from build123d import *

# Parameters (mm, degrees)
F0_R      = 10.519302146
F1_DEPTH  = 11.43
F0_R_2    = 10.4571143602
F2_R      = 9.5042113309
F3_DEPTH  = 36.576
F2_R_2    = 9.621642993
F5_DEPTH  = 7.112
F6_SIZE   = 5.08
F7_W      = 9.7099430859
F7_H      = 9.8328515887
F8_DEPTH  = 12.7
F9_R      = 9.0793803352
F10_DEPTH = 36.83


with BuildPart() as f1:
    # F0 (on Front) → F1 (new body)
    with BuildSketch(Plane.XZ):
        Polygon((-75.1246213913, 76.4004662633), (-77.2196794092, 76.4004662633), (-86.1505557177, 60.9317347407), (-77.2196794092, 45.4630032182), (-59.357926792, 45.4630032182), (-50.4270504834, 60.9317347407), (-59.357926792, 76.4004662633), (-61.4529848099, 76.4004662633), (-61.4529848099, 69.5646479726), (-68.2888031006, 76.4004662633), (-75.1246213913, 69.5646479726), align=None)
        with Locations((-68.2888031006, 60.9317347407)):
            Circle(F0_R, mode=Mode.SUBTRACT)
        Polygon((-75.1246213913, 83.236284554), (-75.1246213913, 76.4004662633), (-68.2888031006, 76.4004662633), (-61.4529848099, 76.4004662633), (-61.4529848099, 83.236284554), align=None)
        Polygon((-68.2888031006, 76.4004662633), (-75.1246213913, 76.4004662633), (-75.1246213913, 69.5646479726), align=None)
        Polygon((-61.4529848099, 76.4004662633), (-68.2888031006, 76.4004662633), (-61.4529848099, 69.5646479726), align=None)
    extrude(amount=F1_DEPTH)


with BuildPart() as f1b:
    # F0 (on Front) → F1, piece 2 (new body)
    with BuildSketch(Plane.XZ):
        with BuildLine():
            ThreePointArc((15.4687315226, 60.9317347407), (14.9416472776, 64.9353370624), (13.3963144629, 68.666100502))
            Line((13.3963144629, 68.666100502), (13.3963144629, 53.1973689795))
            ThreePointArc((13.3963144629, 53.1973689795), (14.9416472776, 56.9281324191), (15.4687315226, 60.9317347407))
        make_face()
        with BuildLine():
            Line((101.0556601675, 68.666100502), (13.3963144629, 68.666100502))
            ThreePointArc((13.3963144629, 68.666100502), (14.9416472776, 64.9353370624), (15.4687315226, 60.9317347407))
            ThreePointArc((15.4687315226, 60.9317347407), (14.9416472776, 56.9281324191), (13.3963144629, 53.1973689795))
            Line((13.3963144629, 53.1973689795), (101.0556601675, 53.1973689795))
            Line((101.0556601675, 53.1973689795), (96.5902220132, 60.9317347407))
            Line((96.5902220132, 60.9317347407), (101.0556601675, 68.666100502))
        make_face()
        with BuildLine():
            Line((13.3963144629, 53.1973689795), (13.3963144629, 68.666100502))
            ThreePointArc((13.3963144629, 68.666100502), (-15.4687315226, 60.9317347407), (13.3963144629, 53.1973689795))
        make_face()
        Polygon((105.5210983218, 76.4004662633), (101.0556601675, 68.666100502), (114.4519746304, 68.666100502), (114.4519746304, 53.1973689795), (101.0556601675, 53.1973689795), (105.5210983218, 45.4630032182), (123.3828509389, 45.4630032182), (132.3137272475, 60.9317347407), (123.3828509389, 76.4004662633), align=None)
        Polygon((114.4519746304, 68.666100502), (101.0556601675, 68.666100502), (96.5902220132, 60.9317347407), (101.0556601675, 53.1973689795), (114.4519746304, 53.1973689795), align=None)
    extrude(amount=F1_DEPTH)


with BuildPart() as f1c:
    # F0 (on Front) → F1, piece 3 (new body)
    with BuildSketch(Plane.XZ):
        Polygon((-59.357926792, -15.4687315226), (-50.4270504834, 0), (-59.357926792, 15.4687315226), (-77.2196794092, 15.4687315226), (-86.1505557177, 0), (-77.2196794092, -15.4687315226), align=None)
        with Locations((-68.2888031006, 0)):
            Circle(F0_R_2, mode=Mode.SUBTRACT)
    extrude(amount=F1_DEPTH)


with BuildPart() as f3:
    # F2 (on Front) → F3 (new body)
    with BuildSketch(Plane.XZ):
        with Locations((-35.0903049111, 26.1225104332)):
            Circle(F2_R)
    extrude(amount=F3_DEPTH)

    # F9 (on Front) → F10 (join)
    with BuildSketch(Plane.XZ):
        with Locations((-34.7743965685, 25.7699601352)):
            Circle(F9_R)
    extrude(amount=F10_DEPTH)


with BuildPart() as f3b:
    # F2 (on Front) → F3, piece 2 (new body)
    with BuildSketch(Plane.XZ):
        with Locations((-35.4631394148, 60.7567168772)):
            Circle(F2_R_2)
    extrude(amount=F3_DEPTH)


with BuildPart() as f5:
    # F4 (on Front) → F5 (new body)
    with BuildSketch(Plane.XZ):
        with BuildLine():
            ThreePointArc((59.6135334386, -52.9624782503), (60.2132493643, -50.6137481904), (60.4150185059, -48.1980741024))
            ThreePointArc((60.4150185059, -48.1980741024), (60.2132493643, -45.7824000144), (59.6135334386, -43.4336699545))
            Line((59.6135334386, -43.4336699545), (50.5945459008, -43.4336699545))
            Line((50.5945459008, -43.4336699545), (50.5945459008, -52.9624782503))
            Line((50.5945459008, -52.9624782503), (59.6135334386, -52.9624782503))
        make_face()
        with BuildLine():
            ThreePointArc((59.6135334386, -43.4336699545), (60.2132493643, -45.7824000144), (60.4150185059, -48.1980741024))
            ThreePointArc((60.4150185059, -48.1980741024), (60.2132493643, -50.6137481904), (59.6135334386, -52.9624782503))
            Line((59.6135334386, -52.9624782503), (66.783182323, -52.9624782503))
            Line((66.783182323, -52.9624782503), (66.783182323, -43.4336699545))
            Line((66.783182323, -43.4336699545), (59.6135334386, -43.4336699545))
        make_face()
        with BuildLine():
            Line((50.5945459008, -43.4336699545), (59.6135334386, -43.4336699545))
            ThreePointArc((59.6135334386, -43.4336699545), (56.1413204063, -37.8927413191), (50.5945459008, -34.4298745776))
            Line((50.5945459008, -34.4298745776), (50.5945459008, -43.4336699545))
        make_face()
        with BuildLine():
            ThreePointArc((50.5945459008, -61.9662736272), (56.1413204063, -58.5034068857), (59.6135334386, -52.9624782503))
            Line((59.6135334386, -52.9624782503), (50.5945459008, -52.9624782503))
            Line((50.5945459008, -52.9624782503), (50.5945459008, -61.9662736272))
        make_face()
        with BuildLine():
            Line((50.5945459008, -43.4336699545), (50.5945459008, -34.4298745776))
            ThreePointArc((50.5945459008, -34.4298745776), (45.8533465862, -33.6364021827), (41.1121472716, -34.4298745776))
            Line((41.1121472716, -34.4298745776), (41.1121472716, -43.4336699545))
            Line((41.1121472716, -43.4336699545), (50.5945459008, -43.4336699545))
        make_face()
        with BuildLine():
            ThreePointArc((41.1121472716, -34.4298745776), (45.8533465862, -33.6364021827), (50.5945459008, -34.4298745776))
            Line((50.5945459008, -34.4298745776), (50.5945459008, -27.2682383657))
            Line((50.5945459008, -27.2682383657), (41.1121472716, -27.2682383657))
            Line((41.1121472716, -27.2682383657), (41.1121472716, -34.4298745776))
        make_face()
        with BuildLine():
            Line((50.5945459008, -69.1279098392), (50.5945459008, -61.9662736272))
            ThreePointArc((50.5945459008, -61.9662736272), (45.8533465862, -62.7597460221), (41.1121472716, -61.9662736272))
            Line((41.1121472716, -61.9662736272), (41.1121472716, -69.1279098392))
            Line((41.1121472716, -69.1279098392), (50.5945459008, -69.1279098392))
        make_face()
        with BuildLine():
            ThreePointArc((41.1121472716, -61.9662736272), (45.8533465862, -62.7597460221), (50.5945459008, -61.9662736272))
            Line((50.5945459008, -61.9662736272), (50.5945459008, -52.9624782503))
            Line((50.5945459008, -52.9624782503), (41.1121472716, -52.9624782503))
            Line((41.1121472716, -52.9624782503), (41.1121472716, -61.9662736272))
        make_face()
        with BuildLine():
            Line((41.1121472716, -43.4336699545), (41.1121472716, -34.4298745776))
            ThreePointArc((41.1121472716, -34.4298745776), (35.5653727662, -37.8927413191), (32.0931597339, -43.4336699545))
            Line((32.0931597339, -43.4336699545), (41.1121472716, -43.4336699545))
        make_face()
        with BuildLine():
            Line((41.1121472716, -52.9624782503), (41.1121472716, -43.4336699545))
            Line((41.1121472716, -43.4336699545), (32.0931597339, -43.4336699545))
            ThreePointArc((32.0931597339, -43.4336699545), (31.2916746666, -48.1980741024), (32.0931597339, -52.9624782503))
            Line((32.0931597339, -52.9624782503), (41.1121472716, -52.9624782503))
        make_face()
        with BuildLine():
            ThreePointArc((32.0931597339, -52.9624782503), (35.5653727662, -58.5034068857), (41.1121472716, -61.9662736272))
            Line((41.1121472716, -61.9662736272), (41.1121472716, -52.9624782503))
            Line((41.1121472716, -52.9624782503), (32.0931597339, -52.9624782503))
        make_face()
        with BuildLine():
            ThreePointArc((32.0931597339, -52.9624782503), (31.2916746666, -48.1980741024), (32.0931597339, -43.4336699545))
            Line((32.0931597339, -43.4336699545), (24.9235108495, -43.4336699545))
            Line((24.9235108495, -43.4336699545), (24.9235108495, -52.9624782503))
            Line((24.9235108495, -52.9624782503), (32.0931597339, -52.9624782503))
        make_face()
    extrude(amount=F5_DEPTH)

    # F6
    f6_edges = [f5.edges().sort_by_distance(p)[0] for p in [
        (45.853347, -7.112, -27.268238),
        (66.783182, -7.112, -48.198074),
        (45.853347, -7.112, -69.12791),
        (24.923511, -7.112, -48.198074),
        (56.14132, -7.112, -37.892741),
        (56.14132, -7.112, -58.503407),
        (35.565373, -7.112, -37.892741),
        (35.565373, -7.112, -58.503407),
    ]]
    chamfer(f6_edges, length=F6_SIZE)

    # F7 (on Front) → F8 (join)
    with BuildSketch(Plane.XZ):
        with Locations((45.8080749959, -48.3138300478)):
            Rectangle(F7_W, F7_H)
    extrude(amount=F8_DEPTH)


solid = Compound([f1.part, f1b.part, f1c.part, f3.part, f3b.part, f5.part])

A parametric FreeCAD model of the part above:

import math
import FreeCAD as App
import Part
import Sketcher
from FreeCAD import Vector
Q = App.Units.Quantity


def edges_at(feature, points):
    """Names of the edges that pass closest to the given points."""
    edges = feature.Shape.Edges
    near = lambda p: min(range(len(edges)), key=lambda i: edges[i].distToShape(Part.Vertex(*p))[0])
    return sorted({f"Edge{near(p) + 1}" for p in points})

doc = App.newDocument("Part")
body = doc.addObject("PartDesign::Body", "Body")

sketch1 = body.newObject("Sketcher::SketchObject", "Sketch")
sketch1.AttachmentSupport = (doc.getObject("XZ_Plane"), [""])
sketch1.MapMode = "FlatFace"
sketch1.addGeometry(Part.LineSegment(Vector(-59.357927, 76.400466, 0), Vector(-61.452985, 76.400466, 0)), False)
sketch1.addGeometry(Part.LineSegment(Vector(-61.452985, 76.400466, 0), Vector(-61.452985, 83.236285, 0)), False)
sketch1.addGeometry(Part.LineSegment(Vector(-61.452985, 83.236285, 0), Vector(-75.124621, 83.236285, 0)), False)
sketch1.addGeometry(Part.LineSegment(Vector(-75.124621, 83.236285, 0), Vector(-75.124621, 76.400466, 0)), False)
sketch1.addGeometry(Part.LineSegment(Vector(-75.124621, 76.400466, 0), Vector(-77.219679, 76.400466, 0)), False)
sketch1.addGeometry(Part.LineSegment(Vector(-77.219679, 76.400466, 0), Vector(-86.150556, 60.931735, 0)), False)
sketch1.addGeometry(Part.LineSegment(Vector(-86.150556, 60.931735, 0), Vector(-77.219679, 45.463003, 0)), False)
sketch1.addGeometry(Part.LineSegment(Vector(-77.219679, 45.463003, 0), Vector(-59.357927, 45.463003, 0)), False)
sketch1.addGeometry(Part.LineSegment(Vector(-59.357927, 45.463003, 0), Vector(-50.42705, 60.931735, 0)), False)
sketch1.addGeometry(Part.LineSegment(Vector(-50.42705, 60.931735, 0), Vector(-59.357927, 76.400466, 0)), False)
sketch1.addGeometry(Part.Circle(Vector(-68.288803, 60.931735, 0), Vector(0, 0, 1), 10.519302), False)
sketch1.addConstraint(Sketcher.Constraint("Coincident", 0, 2, 1, 1))
sketch1.addConstraint(Sketcher.Constraint("Coincident", 1, 2, 2, 1))
sketch1.addConstraint(Sketcher.Constraint("Coincident", 2, 2, 3, 1))
sketch1.addConstraint(Sketcher.Constraint("Coincident", 3, 2, 4, 1))
sketch1.addConstraint(Sketcher.Constraint("Coincident", 4, 2, 5, 1))
sketch1.addConstraint(Sketcher.Constraint("Coincident", 5, 2, 6, 1))
sketch1.addConstraint(Sketcher.Constraint("Coincident", 6, 2, 7, 1))
sketch1.addConstraint(Sketcher.Constraint("Coincident", 7, 2, 8, 1))
sketch1.addConstraint(Sketcher.Constraint("Coincident", 8, 2, 9, 1))
sketch1.addConstraint(Sketcher.Constraint("Coincident", 9, 2, 0, 1))
sketch1.addConstraint(Sketcher.Constraint("Horizontal", 0))
sketch1.addConstraint(Sketcher.Constraint("Vertical", 1))
sketch1.addConstraint(Sketcher.Constraint("Horizontal", 2))
sketch1.addConstraint(Sketcher.Constraint("Vertical", 3))
sketch1.addConstraint(Sketcher.Constraint("Horizontal", 4))
sketch1.addConstraint(Sketcher.Constraint("Horizontal", 7))
sketch1.addConstraint(Sketcher.Constraint("Parallel", 5, 8))
sketch1.addConstraint(Sketcher.Constraint("Parallel", 6, 9))
sketch1.addConstraint(Sketcher.Constraint("Horizontal", 0, 2, 3, 2))
sketch1.addConstraint(Sketcher.Constraint("Horizontal", 10, 3, 5, 2))
sketch1.addConstraint(Sketcher.Constraint("Horizontal", 5, 2, 8, 2))
sketch1.addConstraint(Sketcher.Constraint("Vertical", 4, 2, 6, 2))
sketch1.addConstraint(Sketcher.Constraint("Vertical", 7, 2, 9, 2))
sketch1.addConstraint(Sketcher.Constraint("Equal", 0, 4))
sketch1.addConstraint(Sketcher.Constraint("Angle", 5, Q("-120 deg")))
sketch1.addConstraint(Sketcher.Constraint("Diameter", 10, Q("21.038604 mm")))
sketch1.addConstraint(Sketcher.Constraint("DistanceX", 0, 2, 0, 1, Q("2.095058 mm")))
sketch1.addConstraint(Sketcher.Constraint("DistanceY", 1, 1, 1, 2, Q("6.835818 mm")))
sketch1.addConstraint(Sketcher.Constraint("DistanceX", 2, 2, 2, 1, Q("13.671637 mm")))
sketch1.addConstraint(Sketcher.Constraint("DistanceX", 2, 2, -1, 1, Q("75.124621 mm")))
sketch1.addConstraint(Sketcher.Constraint("DistanceX", 8, 2, -1, 1, Q("50.42705 mm")))
sketch1.addConstraint(Sketcher.Constraint("DistanceX", 10, 3, 0, 2, Q("6.835818 mm")))
sketch1.addConstraint(Sketcher.Constraint("DistanceY", -1, 1, 10, 3, Q("60.931735 mm")))
pad1 = body.newObject("PartDesign::Pad", "Pad")
pad1.Profile = sketch1
pad1.Length = Q("0.45 in")
body2 = doc.addObject("PartDesign::Body", "Body001")

sketch2 = body2.newObject("Sketcher::SketchObject", "Sketch001")
sketch2.AttachmentSupport = (doc.getObject("XZ_Plane001"), [""])
sketch2.MapMode = "FlatFace"
sketch2.addGeometry(Part.LineSegment(Vector(13.396314, 53.197369, 0), Vector(101.05566, 53.197369, 0)), False)
sketch2.addGeometry(Part.LineSegment(Vector(101.05566, 53.197369, 0), Vector(105.521098, 45.463003, 0)), False)
sketch2.addGeometry(Part.LineSegment(Vector(105.521098, 45.463003, 0), Vector(123.382851, 45.463003, 0)), False)
sketch2.addGeometry(Part.LineSegment(Vector(123.382851, 45.463003, 0), Vector(132.313727, 60.931735, 0)), False)
sketch2.addGeometry(Part.LineSegment(Vector(132.313727, 60.931735, 0), Vector(123.382851, 76.400466, 0)), False)
sketch2.addGeometry(Part.LineSegment(Vector(123.382851, 76.400466, 0), Vector(105.521098, 76.400466, 0)), False)
sketch2.addGeometry(Part.LineSegment(Vector(105.521098, 76.400466, 0), Vector(101.05566, 68.666101, 0)), False)
sketch2.addGeometry(Part.LineSegment(Vector(101.05566, 68.666101, 0), Vector(13.396314, 68.666101, 0)), False)
sketch2.addGeometry(Part.ArcOfCircle(Part.Circle(Vector(0, 60.931735, 0), Vector(0, 0, 1), 15.468732), math.radians(30), math.radians(330)), False)
sketch2.addConstraint(Sketcher.Constraint("Coincident", 0, 2, 1, 1))
sketch2.addConstraint(Sketcher.Constraint("Coincident", 1, 2, 2, 1))
sketch2.addConstraint(Sketcher.Constraint("Coincident", 2, 2, 3, 1))
sketch2.addConstraint(Sketcher.Constraint("Coincident", 3, 2, 4, 1))
sketch2.addConstraint(Sketcher.Constraint("Coincident", 4, 2, 5, 1))
sketch2.addConstraint(Sketcher.Constraint("Coincident", 5, 2, 6, 1))
sketch2.addConstraint(Sketcher.Constraint("Coincident", 6, 2, 7, 1))
sketch2.addConstraint(Sketcher.Constraint("Coincident", 7, 2, 8, 1))
sketch2.addConstraint(Sketcher.Constraint("Coincident", 8, 2, 0, 1))
sketch2.addConstraint(Sketcher.Constraint("Horizontal", 0))
sketch2.addConstraint(Sketcher.Constraint("Horizontal", 2))
sketch2.addConstraint(Sketcher.Constraint("Horizontal", 5))
sketch2.addConstraint(Sketcher.Constraint("Horizontal", 7))
sketch2.addConstraint(Sketcher.Constraint("PointOnObject", 8, 3, -2))
sketch2.addConstraint(Sketcher.Constraint("Parallel", 1, 4))
sketch2.addConstraint(Sketcher.Constraint("Parallel", 3, 6))
sketch2.addConstraint(Sketcher.Constraint("Horizontal", 8, 3, 3, 2))
sketch2.addConstraint(Sketcher.Constraint("Vertical", 2, 2, 4, 2))
sketch2.addConstraint(Sketcher.Constraint("Vertical", 1, 2, 5, 2))
sketch2.addConstraint(Sketcher.Constraint("Vertical", 0, 2, 6, 2))
sketch2.addConstraint(Sketcher.Constraint("Vertical", 7, 2, 8, 2))
sketch2.addConstraint(Sketcher.Constraint("Angle", 1, Q("-60 deg")))
sketch2.addConstraint(Sketcher.Constraint("Radius", 8, Q("15.468732 mm")))
sketch2.addConstraint(Sketcher.Constraint("DistanceX", -1, 1, 1, 2, Q("105.521098 mm")))
sketch2.addConstraint(Sketcher.Constraint("DistanceY", -1, 1, 6, 2, Q("68.666101 mm")))
sketch2.addConstraint(Sketcher.Constraint("DistanceX", 0, 1, 0, 2, Q("87.659346 mm")))
sketch2.addConstraint(Sketcher.Constraint("DistanceX", 2, 1, 2, 2, Q("17.861753 mm")))
sketch2.addConstraint(Sketcher.Constraint("DistanceX", -1, 1, 0, 2, Q("101.05566 mm")))
pad2 = body2.newObject("PartDesign::Pad", "Pad001")
pad2.Profile = sketch2
pad2.Length = Q("0.45 in")
body3 = doc.addObject("PartDesign::Body", "Body002")

sketch3 = body3.newObject("Sketcher::SketchObject", "Sketch002")
sketch3.AttachmentSupport = (doc.getObject("XZ_Plane002"), [""])
sketch3.MapMode = "FlatFace"
sketch3.addGeometry(Part.LineSegment(Vector(-59.357927, -15.468732, 0), Vector(-50.42705, 0, 0)), False)
sketch3.addGeometry(Part.LineSegment(Vector(-50.42705, 0, 0), Vector(-59.357927, 15.468732, 0)), False)
sketch3.addGeometry(Part.LineSegment(Vector(-59.357927, 15.468732, 0), Vector(-77.219679, 15.468732, 0)), False)
sketch3.addGeometry(Part.LineSegment(Vector(-77.219679, 15.468732, 0), Vector(-86.150556, 0, 0)), False)
sketch3.addGeometry(Part.LineSegment(Vector(-86.150556, 0, 0), Vector(-77.219679, -15.468732, 0)), False)
sketch3.addGeometry(Part.LineSegment(Vector(-77.219679, -15.468732, 0), Vector(-59.357927, -15.468732, 0)), False)
sketch3.addGeometry(Part.Circle(Vector(-68.288803, 0, 0), Vector(0, 0, 1), 10.457114), False)
sketch3.addConstraint(Sketcher.Constraint("Coincident", 0, 2, 1, 1))
sketch3.addConstraint(Sketcher.Constraint("Coincident", 1, 2, 2, 1))
sketch3.addConstraint(Sketcher.Constraint("Coincident", 2, 2, 3, 1))
sketch3.addConstraint(Sketcher.Constraint("Coincident", 3, 2, 4, 1))
sketch3.addConstraint(Sketcher.Constraint("Coincident", 4, 2, 5, 1))
sketch3.addConstraint(Sketcher.Constraint("Coincident", 5, 2, 0, 1))
sketch3.addConstraint(Sketcher.Constraint("Horizontal", 2))
sketch3.addConstraint(Sketcher.Constraint("Horizontal", 5))
sketch3.addConstraint(Sketcher.Constraint("Symmetric", 2, 2, 4, 2, -1))
sketch3.addConstraint(Sketcher.Constraint("PointOnObject", 6, 3, -1))
sketch3.addConstraint(Sketcher.Constraint("PointOnObject", 0, 2, -1))
sketch3.addConstraint(Sketcher.Constraint("PointOnObject", 3, 2, -1))
sketch3.addConstraint(Sketcher.Constraint("Parallel", 0, 3))
sketch3.addConstraint(Sketcher.Constraint("Parallel", 1, 4))
sketch3.addConstraint(Sketcher.Constraint("Angle", 0, Q("60 deg")))
sketch3.addConstraint(Sketcher.Constraint("Diameter", 6, Q("20.914229 mm")))
sketch3.addConstraint(Sketcher.Constraint("DistanceX", 2, 2, 2, 1, Q("17.861753 mm")))
sketch3.addConstraint(Sketcher.Constraint("DistanceX", 0, 2, -1, 1, Q("50.42705 mm")))
sketch3.addConstraint(Sketcher.Constraint("DistanceY", -1, 1, 1, 2, Q("15.468732 mm")))
sketch3.addConstraint(Sketcher.Constraint("DistanceX", 6, 3, -1, 1, Q("68.288803 mm")))
pad3 = body3.newObject("PartDesign::Pad", "Pad002")
pad3.Profile = sketch3
pad3.Length = Q("0.45 in")
body4 = doc.addObject("PartDesign::Body", "Body003")

sketch4 = body4.newObject("Sketcher::SketchObject", "Sketch003")
sketch4.AttachmentSupport = (doc.getObject("XZ_Plane003"), [""])
sketch4.MapMode = "FlatFace"
sketch4.addGeometry(Part.Circle(Vector(-35.090305, 26.12251, 0), Vector(0, 0, 1), 9.504211), False)
sketch4.addConstraint(Sketcher.Constraint("Diameter", 0, Q("19.008423 mm")))
sketch4.addConstraint(Sketcher.Constraint("DistanceY", -1, 1, 0, 3, Q("26.12251 mm")))
sketch4.addConstraint(Sketcher.Constraint("DistanceX", 0, 3, -1, 1, Q("35.090305 mm")))
pad4 = body4.newObject("PartDesign::Pad", "Pad003")
pad4.Profile = sketch4
pad4.Length = Q("1.44 in")

sketch5 = body4.newObject("Sketcher::SketchObject", "Sketch004")
sketch5.AttachmentSupport = (doc.getObject("XZ_Plane003"), [""])
sketch5.MapMode = "FlatFace"
sketch5.addGeometry(Part.Circle(Vector(-34.774397, 25.76996, 0), Vector(0, 0, 1), 9.07938), False)
sketch5.addConstraint(Sketcher.Constraint("Diameter", 0, Q("18.158761 mm")))
sketch5.addConstraint(Sketcher.Constraint("DistanceY", -1, 1, 0, 3, Q("25.76996 mm")))
sketch5.addConstraint(Sketcher.Constraint("DistanceX", 0, 3, -1, 1, Q("34.774397 mm")))
pad5 = body4.newObject("PartDesign::Pad", "Pad004")
pad5.Profile = sketch5
pad5.Length = Q("1.45 in")
body5 = doc.addObject("PartDesign::Body", "Body004")

sketch6 = body5.newObject("Sketcher::SketchObject", "Sketch005")
sketch6.AttachmentSupport = (doc.getObject("XZ_Plane004"), [""])
sketch6.MapMode = "FlatFace"
sketch6.addGeometry(Part.Circle(Vector(-35.463139, 60.756717, 0), Vector(0, 0, 1), 9.621643), False)
sketch6.addConstraint(Sketcher.Constraint("Diameter", 0, Q("19.243286 mm")))
sketch6.addConstraint(Sketcher.Constraint("DistanceX", 0, 3, -1, 1, Q("35.463139 mm")))
sketch6.addConstraint(Sketcher.Constraint("DistanceY", -1, 1, 0, 3, Q("60.756717 mm")))
pad6 = body5.newObject("PartDesign::Pad", "Pad005")
pad6.Profile = sketch6
pad6.Length = Q("1.44 in")
body6 = doc.addObject("PartDesign::Body", "Body005")

sketch7 = body6.newObject("Sketcher::SketchObject", "Sketch006")
sketch7.AttachmentSupport = (doc.getObject("XZ_Plane005"), [""])
sketch7.MapMode = "FlatFace"
sketch7.addGeometry(Part.ArcOfCircle(Part.Circle(Vector(45.853347, -48.198074, 0), Vector(0, 0, 1), 14.561672), math.radians(-160.901814), math.radians(-109.001592)), False)
sketch7.addGeometry(Part.LineSegment(Vector(41.112147, -61.966274, 0), Vector(41.112147, -69.12791, 0)), False)
sketch7.addGeometry(Part.LineSegment(Vector(41.112147, -69.12791, 0), Vector(50.594546, -69.12791, 0)), False)
sketch7.addGeometry(Part.LineSegment(Vector(50.594546, -69.12791, 0), Vector(50.594546, -61.966274, 0)), False)
sketch7.addGeometry(Part.ArcOfCircle(Part.Circle(Vector(45.853347, -48.198074, 0), Vector(0, 0, 1), 14.561672), math.radians(-70.998408), math.radians(-19.098186)), False)
sketch7.addGeometry(Part.LineSegment(Vector(59.613533, -52.962478, 0), Vector(66.783182, -52.962478, 0)), False)
sketch7.addGeometry(Part.LineSegment(Vector(66.783182, -52.962478, 0), Vector(66.783182, -43.43367, 0)), False)
sketch7.addGeometry(Part.LineSegment(Vector(66.783182, -43.43367, 0), Vector(59.613533, -43.43367, 0)), False)
sketch7.addGeometry(Part.ArcOfCircle(Part.Circle(Vector(45.853347, -48.198074, 0), Vector(0, 0, 1), 14.561672), math.radians(19.098186), math.radians(70.998408)), False)
sketch7.addGeometry(Part.LineSegment(Vector(50.594546, -34.429875, 0), Vector(50.594546, -27.268238, 0)), False)
sketch7.addGeometry(Part.LineSegment(Vector(50.594546, -27.268238, 0), Vector(41.112147, -27.268238, 0)), False)
sketch7.addGeometry(Part.LineSegment(Vector(41.112147, -27.268238, 0), Vector(41.112147, -34.429875, 0)), False)
sketch7.addGeometry(Part.ArcOfCircle(Part.Circle(Vector(45.853347, -48.198074, 0), Vector(0, 0, 1), 14.561672), math.radians(109.001592), math.radians(160.901814)), False)
sketch7.addGeometry(Part.LineSegment(Vector(32.09316, -43.43367, 0), Vector(24.923511, -43.43367, 0)), False)
sketch7.addGeometry(Part.LineSegment(Vector(24.923511, -43.43367, 0), Vector(24.923511, -52.962478, 0)), False)
sketch7.addGeometry(Part.LineSegment(Vector(24.923511, -52.962478, 0), Vector(32.09316, -52.962478, 0)), False)
sketch7.addGeometry(Part.LineSegment(Vector(50.594546, -52.962478, 0), Vector(41.112147, -52.962478, 0)), False)
sketch7.addGeometry(Part.LineSegment(Vector(41.112147, -52.962478, 0), Vector(41.112147, -43.43367, 0)), False)
sketch7.addGeometry(Part.LineSegment(Vector(41.112147, -43.43367, 0), Vector(50.594546, -43.43367, 0)), False)
sketch7.addGeometry(Part.LineSegment(Vector(50.594546, -43.43367, 0), Vector(50.594546, -52.962478, 0)), False)
sketch7.addConstraint(Sketcher.Constraint("Coincident", 0, 2, 1, 1))
sketch7.addConstraint(Sketcher.Constraint("Coincident", 1, 2, 2, 1))
sketch7.addConstraint(Sketcher.Constraint("Coincident", 2, 2, 3, 1))
sketch7.addConstraint(Sketcher.Constraint("Coincident", 3, 2, 4, 1))
sketch7.addConstraint(Sketcher.Constraint("Coincident", 4, 2, 5, 1))
sketch7.addConstraint(Sketcher.Constraint("Coincident", 5, 2, 6, 1))
sketch7.addConstraint(Sketcher.Constraint("Coincident", 6, 2, 7, 1))
sketch7.addConstraint(Sketcher.Constraint("Coincident", 7, 2, 8, 1))
sketch7.addConstraint(Sketcher.Constraint("Coincident", 8, 2, 9, 1))
sketch7.addConstraint(Sketcher.Constraint("Coincident", 9, 2, 10, 1))
sketch7.addConstraint(Sketcher.Constraint("Coincident", 10, 2, 11, 1))
sketch7.addConstraint(Sketcher.Constraint("Coincident", 11, 2, 12, 1))
sketch7.addConstraint(Sketcher.Constraint("Coincident", 12, 2, 13, 1))
sketch7.addConstraint(Sketcher.Constraint("Coincident", 13, 2, 14, 1))
sketch7.addConstraint(Sketcher.Constraint("Coincident", 14, 2, 15, 1))
sketch7.addConstraint(Sketcher.Constraint("Coincident", 15, 2, 0, 1))
sketch7.addConstraint(Sketcher.Constraint("Coincident", 16, 2, 17, 1))
sketch7.addConstraint(Sketcher.Constraint("Coincident", 17, 2, 18, 1))
sketch7.addConstraint(Sketcher.Constraint("Coincident", 18, 2, 19, 1))
sketch7.addConstraint(Sketcher.Constraint("Coincident", 19, 2, 16, 1))
sketch7.addConstraint(Sketcher.Constraint("Vertical", 1))
sketch7.addConstraint(Sketcher.Constraint("Horizontal", 2))
sketch7.addConstraint(Sketcher.Constraint("Vertical", 3))
sketch7.addConstraint(Sketcher.Constraint("Horizontal", 5))
sketch7.addConstraint(Sketcher.Constraint("Vertical", 6))
sketch7.addConstraint(Sketcher.Constraint("Horizontal", 7))
sketch7.addConstraint(Sketcher.Constraint("Vertical", 9))
sketch7.addConstraint(Sketcher.Constraint("Horizontal", 10))
sketch7.addConstraint(Sketcher.Constraint("Vertical", 11))
sketch7.addConstraint(Sketcher.Constraint("Horizontal", 13))
sketch7.addConstraint(Sketcher.Constraint("Vertical", 14))
sketch7.addConstraint(Sketcher.Constraint("Horizontal", 15))
sketch7.addConstraint(Sketcher.Constraint("Horizontal", 16))
sketch7.addConstraint(Sketcher.Constraint("Vertical", 17))
sketch7.addConstraint(Sketcher.Constraint("Horizontal", 18))
sketch7.addConstraint(Sketcher.Constraint("Vertical", 19))
sketch7.addConstraint(Sketcher.Constraint("Coincident", 4, 3, 0, 3))
sketch7.addConstraint(Sketcher.Constraint("Coincident", 8, 3, 0, 3))
sketch7.addConstraint(Sketcher.Constraint("Coincident", 12, 3, 0, 3))
sketch7.addConstraint(Sketcher.Constraint("Equal", 0, 4))
sketch7.addConstraint(Sketcher.Constraint("Equal", 4, 8))
sketch7.addConstraint(Sketcher.Constraint("Equal", 8, 12))
sketch7.addConstraint(Sketcher.Constraint("Horizontal", 0, 2, 3, 2))
sketch7.addConstraint(Sketcher.Constraint("Horizontal", 8, 2, 11, 2))
sketch7.addConstraint(Sketcher.Constraint("Horizontal", 7, 2, 12, 2))
sketch7.addConstraint(Sketcher.Constraint("Horizontal", 5, 2, 14, 2))
sketch7.addConstraint(Sketcher.Constraint("Horizontal", 15, 2, 16, 2))
sketch7.addConstraint(Sketcher.Constraint("Horizontal", 13, 2, 17, 2))
sketch7.addConstraint(Sketcher.Constraint("Vertical", 4, 2, 7, 2))
sketch7.addConstraint(Sketcher.Constraint("Vertical", 3, 2, 8, 2))
sketch7.addConstraint(Sketcher.Constraint("Vertical", 11, 2, 16, 2))
sketch7.addConstraint(Sketcher.Constraint("Vertical", 9, 2, 18, 2))
sketch7.addConstraint(Sketcher.Constraint("Equal", 7, 13))
sketch7.addConstraint(Sketcher.Constraint("Equal", 3, 9))
sketch7.addConstraint(Sketcher.Constraint("Radius", 0, Q("14.561672 mm")))
sketch7.addConstraint(Sketcher.Constraint("DistanceX", 2, 1, 2, 2, Q("9.482399 mm")))
sketch7.addConstraint(Sketcher.Constraint("DistanceX", 5, 1, 5, 2, Q("7.169649 mm")))
sketch7.addConstraint(Sketcher.Constraint("DistanceY", 6, 1, 6, 2, Q("9.528808 mm")))
sketch7.addConstraint(Sketcher.Constraint("DistanceY", 1, 2, 1, 1, Q("7.161636 mm")))
sketch7.addConstraint(Sketcher.Constraint("DistanceY", 1, 2, -1, 1, Q("69.12791 mm")))
sketch7.addConstraint(Sketcher.Constraint("DistanceX", -1, 1, 12, 2, Q("32.09316 mm")))
pad7 = body6.newObject("PartDesign::Pad", "Pad006")
pad7.Profile = sketch7
pad7.Length = Q("0.28 in")
doc.recompute()

chamfer = body6.newObject("PartDesign::Chamfer", "Chamfer")
chamfer.Base = (pad7, edges_at(pad7, [
    (45.853, -7.112, -27.268),
    (66.783, -7.112, -48.198),
    (45.853, -7.112, -69.128),
    (24.924, -7.112, -48.198),
    (56.141, -7.112, -37.893),
    (56.141, -7.112, -58.503),
    (35.565, -7.112, -37.893),
    (35.565, -7.112, -58.503),
]))
chamfer.Size = Q("0.2 in")

sketch8 = body6.newObject("Sketcher::SketchObject", "Sketch007")
sketch8.AttachmentSupport = (doc.getObject("XZ_Plane005"), [""])
sketch8.MapMode = "FlatFace"
sketch8.addGeometry(Part.LineSegment(Vector(40.953103, -43.397404, 0), Vector(40.953103, -53.230256, 0)), False)
sketch8.addGeometry(Part.LineSegment(Vector(40.953103, -53.230256, 0), Vector(50.663047, -53.230256, 0)), False)
sketch8.addGeometry(Part.LineSegment(Vector(50.663047, -53.230256, 0), Vector(50.663047, -43.397404, 0)), False)
sketch8.addGeometry(Part.LineSegment(Vector(50.663047, -43.397404, 0), Vector(40.953103, -43.397404, 0)), False)
sketch8.addConstraint(Sketcher.Constraint("Coincident", 0, 2, 1, 1))
sketch8.addConstraint(Sketcher.Constraint("Coincident", 1, 2, 2, 1))
sketch8.addConstraint(Sketcher.Constraint("Coincident", 2, 2, 3, 1))
sketch8.addConstraint(Sketcher.Constraint("Coincident", 3, 2, 0, 1))
sketch8.addConstraint(Sketcher.Constraint("Vertical", 0))
sketch8.addConstraint(Sketcher.Constraint("Horizontal", 1))
sketch8.addConstraint(Sketcher.Constraint("Vertical", 2))
sketch8.addConstraint(Sketcher.Constraint("Horizontal", 3))
sketch8.addConstraint(Sketcher.Constraint("DistanceY", 0, 2, 0, 1, Q("9.832852 mm")))
sketch8.addConstraint(Sketcher.Constraint("DistanceX", 1, 1, 1, 2, Q("9.709943 mm")))
sketch8.addConstraint(Sketcher.Constraint("DistanceX", -1, 1, 0, 2, Q("40.953103 mm")))
sketch8.addConstraint(Sketcher.Constraint("DistanceY", 0, 2, -1, 1, Q("53.230256 mm")))
pad8 = body6.newObject("PartDesign::Pad", "Pad007")
pad8.Profile = sketch8
pad8.Length = Q("0.5 in")

doc.recompute()
